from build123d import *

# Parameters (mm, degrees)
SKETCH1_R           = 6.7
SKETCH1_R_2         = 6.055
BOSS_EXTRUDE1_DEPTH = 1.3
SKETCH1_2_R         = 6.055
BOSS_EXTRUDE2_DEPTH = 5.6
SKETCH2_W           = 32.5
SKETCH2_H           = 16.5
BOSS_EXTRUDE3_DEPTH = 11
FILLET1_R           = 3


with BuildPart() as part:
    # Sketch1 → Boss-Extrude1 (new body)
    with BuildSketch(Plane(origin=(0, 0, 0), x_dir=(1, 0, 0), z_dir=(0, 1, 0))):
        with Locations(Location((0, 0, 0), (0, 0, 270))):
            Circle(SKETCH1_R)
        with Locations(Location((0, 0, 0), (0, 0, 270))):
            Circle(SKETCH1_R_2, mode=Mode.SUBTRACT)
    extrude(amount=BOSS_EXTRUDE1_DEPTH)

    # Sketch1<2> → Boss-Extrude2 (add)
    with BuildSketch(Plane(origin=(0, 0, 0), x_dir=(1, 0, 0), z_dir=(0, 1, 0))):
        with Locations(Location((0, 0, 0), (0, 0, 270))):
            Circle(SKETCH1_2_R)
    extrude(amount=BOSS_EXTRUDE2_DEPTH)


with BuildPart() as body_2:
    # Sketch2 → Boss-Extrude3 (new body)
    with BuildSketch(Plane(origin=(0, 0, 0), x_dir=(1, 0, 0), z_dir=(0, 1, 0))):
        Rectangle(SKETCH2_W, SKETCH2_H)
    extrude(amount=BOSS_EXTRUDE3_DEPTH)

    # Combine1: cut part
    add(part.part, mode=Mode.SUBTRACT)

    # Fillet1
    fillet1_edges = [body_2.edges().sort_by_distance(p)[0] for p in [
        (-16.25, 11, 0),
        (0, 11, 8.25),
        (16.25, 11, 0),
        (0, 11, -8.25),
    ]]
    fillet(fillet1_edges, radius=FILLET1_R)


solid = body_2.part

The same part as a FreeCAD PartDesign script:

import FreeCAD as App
import Part
import Sketcher
from FreeCAD import Vector


def edges_at(feature, points):
    """Names of the edges that pass closest to the given points."""
    edges = feature.Shape.Edges
    near = lambda p: min(range(len(edges)), key=lambda i: edges[i].distToShape(Part.Vertex(*p))[0])
    return sorted({f"Edge{near(p) + 1}" for p in points})


def add_polygon(sketch, points):
    """Adds a closed chain of lines whose ends are joined by coincident constraints."""
    first, n = sketch.GeometryCount, len(points)
    for a, b in zip(points, points[1:] + points[:1]):
        sketch.addGeometry(Part.LineSegment(App.Vector(*a, 0), App.Vector(*b, 0)), False)
    for i in range(n):
        sketch.addConstraint(Sketcher.Constraint("Coincident", first + i, 2, first + (i + 1) % n, 1))

doc = App.newDocument("Part")
body = doc.addObject("PartDesign::Body", "Body")

sketch1 = body.newObject("Sketcher::SketchObject", "Sketch")
sketch1.AttachmentSupport = (doc.getObject("XZ_Plane"), [""])
sketch1.MapMode = "FlatFace"
sketch1.addGeometry([
    Part.Circle(Vector(0, 0, 0), Vector(0, 0, 1), 7),
    Part.Circle(Vector(0, 0, 0), Vector(0, 0, 1), 6),
], False)
sketch1.addConstraint([
    Sketcher.Constraint("Coincident", 0, 3, -1, 1),
    Sketcher.Constraint("Coincident", 1, 3, -1, 1),
    Sketcher.Constraint("Diameter", 0, 13.4),
    Sketcher.Constraint("Diameter", 1, 12.11),
])
pad1 = body.newObject("PartDesign::Pad", "Pad")
pad1.Profile = sketch1
pad1.Length = 1.3
pad1.Reversed = True

sketch2 = body.newObject("Sketcher::SketchObject", "Sketch001")
sketch2.AttachmentSupport = (doc.getObject("XZ_Plane"), [""])
sketch2.MapMode = "FlatFace"
sketch2.addGeometry(Part.Circle(Vector(0, 0, 0), Vector(0, 0, 1), 6), False)
sketch2.addConstraint([
    Sketcher.Constraint("Coincident", 0, 3, -1, 1),
    Sketcher.Constraint("Diameter", 0, 12.11),
])
pad2 = body.newObject("PartDesign::Pad", "Pad001")
pad2.Profile = sketch2
pad2.Length = 5.6
pad2.Reversed = True
body2 = doc.addObject("PartDesign::Body", "Body001")

sketch3 = body2.newObject("Sketcher::SketchObject", "Sketch002")
sketch3.AttachmentSupport = (doc.getObject("XZ_Plane001"), [""])
sketch3.MapMode = "FlatFace"
add_polygon(sketch3, [(-16, -8), (-16, 8), (16, 8), (16, -8)])
sketch3.addConstraint([
    Sketcher.Constraint("Vertical", 0),
    Sketcher.Constraint("Horizontal", 1),
    Sketcher.Constraint("Vertical", 2),
    Sketcher.Constraint("Horizontal", 3),
    Sketcher.Constraint("Symmetric", 0, 2, 2, 2, -1, 1),
    Sketcher.Constraint("DistanceX", 1, 1, 1, 2, 32.5),
    Sketcher.Constraint("DistanceY", 0, 1, 0, 2, 16.5),
])
pad3 = body2.newObject("PartDesign::Pad", "Pad002")
pad3.Profile = sketch3
pad3.Length = 11
pad3.Reversed = True
doc.recompute()

boolean = body2.newObject("PartDesign::Boolean", "Boolean")
boolean.Type = "Cut"
boolean.addObjects([body])
doc.recompute()

fillet = body2.newObject("PartDesign::Fillet", "Fillet")
fillet.Base = (boolean, edges_at(boolean, [
    (-16.25, 11, 0),
    (0, 11, 8.25),
    (16.25, 11, 0),
    (0, 11, -8.25),
]))
fillet.Radius = 3

doc.recompute()
